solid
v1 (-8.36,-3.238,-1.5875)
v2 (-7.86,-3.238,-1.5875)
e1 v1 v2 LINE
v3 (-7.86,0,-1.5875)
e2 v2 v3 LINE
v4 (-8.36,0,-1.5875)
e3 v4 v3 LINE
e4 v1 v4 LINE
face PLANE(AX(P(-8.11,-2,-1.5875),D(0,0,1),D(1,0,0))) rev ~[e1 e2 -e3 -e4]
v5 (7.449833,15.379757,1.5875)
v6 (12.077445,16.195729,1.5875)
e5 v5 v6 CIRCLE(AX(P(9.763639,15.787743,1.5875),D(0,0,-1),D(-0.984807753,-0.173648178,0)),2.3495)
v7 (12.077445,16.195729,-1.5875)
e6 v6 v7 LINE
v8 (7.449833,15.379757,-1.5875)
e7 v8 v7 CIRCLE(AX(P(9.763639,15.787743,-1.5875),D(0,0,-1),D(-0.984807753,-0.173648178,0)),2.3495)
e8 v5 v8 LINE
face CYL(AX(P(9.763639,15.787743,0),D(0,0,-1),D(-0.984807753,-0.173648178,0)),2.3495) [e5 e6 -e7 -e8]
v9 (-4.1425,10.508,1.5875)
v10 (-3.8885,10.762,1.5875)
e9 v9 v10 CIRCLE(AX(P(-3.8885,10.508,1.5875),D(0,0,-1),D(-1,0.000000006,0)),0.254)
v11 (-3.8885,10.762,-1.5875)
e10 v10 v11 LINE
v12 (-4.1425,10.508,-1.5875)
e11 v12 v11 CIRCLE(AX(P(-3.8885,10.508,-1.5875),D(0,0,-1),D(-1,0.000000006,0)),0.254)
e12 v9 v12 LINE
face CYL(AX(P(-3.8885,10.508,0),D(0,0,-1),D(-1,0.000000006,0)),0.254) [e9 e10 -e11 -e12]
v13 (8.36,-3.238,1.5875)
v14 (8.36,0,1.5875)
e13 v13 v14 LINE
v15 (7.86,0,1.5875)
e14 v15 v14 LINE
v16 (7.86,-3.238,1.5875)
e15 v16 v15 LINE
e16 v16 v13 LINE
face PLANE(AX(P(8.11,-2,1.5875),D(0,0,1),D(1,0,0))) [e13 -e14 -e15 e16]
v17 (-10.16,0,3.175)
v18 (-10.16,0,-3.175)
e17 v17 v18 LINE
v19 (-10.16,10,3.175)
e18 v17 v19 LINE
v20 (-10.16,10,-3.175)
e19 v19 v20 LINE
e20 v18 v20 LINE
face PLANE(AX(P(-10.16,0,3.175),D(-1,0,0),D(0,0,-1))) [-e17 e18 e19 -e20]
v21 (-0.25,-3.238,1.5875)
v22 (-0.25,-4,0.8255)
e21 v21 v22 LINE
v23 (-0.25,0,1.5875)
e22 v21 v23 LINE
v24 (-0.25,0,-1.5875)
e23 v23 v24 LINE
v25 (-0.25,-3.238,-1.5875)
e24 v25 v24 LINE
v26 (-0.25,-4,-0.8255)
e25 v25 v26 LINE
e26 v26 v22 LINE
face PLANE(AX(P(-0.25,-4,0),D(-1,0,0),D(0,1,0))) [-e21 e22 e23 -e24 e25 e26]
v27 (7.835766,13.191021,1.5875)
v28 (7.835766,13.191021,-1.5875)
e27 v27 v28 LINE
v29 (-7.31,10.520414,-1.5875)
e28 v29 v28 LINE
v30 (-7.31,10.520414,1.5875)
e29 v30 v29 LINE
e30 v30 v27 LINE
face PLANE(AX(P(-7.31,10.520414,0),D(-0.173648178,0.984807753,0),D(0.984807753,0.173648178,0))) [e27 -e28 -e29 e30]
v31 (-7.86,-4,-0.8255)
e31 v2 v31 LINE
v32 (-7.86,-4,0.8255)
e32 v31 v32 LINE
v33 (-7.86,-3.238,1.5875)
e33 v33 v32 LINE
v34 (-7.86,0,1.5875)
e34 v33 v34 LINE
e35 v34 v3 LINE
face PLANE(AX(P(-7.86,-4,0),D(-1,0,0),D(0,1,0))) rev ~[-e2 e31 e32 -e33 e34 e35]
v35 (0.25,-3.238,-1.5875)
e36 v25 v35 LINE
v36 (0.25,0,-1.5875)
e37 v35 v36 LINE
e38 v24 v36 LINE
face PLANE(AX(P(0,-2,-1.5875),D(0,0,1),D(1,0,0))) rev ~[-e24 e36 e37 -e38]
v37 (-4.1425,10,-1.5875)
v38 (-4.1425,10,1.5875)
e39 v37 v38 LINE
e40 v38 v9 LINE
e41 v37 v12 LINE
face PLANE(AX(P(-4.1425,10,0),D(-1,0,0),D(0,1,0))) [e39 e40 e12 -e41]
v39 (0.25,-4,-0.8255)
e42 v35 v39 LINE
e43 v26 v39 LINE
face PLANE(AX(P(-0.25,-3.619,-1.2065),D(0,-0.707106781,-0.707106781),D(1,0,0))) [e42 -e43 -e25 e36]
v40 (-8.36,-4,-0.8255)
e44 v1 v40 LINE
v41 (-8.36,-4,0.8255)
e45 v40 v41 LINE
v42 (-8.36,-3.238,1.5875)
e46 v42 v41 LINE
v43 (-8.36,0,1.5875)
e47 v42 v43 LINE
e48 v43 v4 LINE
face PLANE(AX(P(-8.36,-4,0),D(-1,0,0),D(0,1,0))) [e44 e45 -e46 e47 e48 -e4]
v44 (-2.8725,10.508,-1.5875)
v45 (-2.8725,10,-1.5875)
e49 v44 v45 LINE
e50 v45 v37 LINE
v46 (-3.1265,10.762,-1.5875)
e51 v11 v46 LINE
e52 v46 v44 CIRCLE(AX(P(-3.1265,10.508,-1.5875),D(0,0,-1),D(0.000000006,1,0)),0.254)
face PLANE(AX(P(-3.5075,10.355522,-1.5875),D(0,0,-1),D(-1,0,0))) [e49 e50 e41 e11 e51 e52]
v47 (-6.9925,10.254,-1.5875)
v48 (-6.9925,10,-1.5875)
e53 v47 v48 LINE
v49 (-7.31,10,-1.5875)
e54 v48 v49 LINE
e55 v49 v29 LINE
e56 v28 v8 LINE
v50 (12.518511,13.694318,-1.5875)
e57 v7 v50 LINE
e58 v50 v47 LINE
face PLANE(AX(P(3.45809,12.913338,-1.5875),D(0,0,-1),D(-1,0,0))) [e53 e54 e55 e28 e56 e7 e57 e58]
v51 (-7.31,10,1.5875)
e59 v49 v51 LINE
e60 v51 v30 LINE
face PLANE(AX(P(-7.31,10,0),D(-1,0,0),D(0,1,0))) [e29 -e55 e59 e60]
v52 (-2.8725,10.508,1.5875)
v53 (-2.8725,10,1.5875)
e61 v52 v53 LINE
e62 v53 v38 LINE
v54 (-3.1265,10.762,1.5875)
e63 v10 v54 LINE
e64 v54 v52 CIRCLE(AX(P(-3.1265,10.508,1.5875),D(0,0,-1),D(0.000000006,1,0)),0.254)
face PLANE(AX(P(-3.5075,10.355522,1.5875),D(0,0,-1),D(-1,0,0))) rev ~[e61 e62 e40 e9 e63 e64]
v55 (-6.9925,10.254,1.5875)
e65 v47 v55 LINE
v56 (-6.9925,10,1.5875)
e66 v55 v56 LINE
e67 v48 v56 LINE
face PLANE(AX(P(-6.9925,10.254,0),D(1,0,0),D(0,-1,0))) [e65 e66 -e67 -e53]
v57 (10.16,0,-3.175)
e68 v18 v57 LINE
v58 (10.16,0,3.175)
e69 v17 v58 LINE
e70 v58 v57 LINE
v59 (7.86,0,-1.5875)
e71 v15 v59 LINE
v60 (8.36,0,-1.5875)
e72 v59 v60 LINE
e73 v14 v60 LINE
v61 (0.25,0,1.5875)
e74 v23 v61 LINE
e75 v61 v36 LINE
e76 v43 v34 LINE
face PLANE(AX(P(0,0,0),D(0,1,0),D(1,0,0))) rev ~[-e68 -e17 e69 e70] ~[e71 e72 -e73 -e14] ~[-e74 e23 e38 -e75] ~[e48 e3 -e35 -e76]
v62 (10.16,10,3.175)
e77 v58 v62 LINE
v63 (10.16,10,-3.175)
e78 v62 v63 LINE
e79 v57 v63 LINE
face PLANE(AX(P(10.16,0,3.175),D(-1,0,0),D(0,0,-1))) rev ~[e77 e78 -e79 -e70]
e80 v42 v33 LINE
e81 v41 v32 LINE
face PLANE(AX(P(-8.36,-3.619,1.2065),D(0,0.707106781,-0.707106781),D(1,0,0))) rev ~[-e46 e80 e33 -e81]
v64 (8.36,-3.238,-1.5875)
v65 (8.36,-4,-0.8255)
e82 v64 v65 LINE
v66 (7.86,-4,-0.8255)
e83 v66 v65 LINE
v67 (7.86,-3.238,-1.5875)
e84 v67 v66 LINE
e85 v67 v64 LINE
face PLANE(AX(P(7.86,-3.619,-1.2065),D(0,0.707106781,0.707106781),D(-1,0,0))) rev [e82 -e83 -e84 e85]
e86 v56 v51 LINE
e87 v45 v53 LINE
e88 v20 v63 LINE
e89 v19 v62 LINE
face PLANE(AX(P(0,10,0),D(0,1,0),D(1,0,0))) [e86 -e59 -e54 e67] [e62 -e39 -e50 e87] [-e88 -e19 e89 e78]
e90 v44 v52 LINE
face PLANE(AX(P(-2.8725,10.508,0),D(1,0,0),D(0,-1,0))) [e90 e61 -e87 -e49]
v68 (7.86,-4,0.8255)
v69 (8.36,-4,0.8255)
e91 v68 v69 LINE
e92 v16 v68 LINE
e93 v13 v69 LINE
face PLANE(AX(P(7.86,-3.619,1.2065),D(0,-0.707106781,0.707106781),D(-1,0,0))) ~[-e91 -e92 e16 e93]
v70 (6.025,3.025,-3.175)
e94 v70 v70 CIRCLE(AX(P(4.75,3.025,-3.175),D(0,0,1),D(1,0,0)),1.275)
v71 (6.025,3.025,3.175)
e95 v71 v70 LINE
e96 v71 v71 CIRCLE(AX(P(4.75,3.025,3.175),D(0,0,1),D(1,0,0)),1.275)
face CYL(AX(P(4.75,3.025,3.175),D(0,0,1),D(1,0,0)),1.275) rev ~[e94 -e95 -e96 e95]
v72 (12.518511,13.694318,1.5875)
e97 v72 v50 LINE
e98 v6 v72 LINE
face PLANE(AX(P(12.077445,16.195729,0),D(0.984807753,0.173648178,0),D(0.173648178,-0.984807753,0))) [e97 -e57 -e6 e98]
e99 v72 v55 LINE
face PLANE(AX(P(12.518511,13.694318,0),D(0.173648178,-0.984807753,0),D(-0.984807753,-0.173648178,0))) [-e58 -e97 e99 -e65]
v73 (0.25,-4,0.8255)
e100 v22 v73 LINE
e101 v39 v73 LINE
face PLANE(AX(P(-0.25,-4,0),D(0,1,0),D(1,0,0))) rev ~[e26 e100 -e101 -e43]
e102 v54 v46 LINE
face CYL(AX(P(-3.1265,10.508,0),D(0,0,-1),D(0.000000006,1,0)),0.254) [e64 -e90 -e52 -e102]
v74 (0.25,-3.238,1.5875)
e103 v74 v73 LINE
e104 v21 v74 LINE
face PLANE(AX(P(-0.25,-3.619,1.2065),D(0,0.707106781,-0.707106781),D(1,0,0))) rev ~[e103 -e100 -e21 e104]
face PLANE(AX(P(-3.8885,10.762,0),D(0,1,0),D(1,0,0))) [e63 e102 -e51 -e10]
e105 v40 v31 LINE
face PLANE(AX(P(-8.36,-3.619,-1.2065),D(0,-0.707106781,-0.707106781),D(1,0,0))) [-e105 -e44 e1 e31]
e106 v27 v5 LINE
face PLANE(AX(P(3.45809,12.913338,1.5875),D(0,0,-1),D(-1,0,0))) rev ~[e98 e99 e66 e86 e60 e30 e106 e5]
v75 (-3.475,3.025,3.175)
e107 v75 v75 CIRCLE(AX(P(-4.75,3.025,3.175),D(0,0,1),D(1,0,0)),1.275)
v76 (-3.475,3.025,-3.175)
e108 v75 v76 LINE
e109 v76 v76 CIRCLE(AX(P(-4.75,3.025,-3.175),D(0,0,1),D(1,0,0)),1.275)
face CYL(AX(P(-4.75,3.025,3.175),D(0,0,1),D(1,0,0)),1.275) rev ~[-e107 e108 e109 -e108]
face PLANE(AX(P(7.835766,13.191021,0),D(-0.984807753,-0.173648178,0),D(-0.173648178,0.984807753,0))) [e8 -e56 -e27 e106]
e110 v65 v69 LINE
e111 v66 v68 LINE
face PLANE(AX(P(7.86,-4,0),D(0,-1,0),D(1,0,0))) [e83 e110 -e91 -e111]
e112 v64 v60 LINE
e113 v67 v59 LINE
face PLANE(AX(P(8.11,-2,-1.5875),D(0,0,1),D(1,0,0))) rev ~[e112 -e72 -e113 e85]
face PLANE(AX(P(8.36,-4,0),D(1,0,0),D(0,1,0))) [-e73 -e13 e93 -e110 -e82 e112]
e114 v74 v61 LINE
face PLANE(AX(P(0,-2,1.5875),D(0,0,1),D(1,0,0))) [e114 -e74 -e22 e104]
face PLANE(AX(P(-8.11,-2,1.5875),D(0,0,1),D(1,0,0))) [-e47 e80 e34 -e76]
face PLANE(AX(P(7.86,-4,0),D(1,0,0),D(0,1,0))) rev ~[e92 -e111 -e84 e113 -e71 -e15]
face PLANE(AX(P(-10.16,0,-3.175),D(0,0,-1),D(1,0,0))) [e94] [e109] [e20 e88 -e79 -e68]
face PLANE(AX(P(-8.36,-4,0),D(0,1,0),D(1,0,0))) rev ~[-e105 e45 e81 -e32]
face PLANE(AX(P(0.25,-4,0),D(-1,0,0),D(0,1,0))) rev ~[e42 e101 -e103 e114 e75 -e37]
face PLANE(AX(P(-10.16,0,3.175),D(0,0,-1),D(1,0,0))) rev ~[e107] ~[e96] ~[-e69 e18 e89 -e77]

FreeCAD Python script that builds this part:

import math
import FreeCAD as App
import Part
import Sketcher

V = App.Vector
Q = App.Units.Quantity


def edges_at(feature, points):
    """Names of the edges that pass closest to the given points."""
    edges = feature.Shape.Edges
    near = lambda p: min(range(len(edges)), key=lambda i: edges[i].distToShape(Part.Vertex(*p))[0])
    return sorted({f"Edge{near(p) + 1}" for p in points})

doc = App.newDocument("Part")
params = doc.addObject("Spreadsheet::Sheet", "Params")
for row, (alias, value) in enumerate([
    ("sketch1_width", "0.8 in"),
    ("sketch1_height", "0.25 in"),
    ("pad1_length", "10 mm"),
    ("sketch2_radius", "0.01 in"),
    ("sketch2_length", "0.1 in"),
    ("sketch2_width", "0.05 in"),
    ("sketch2_height", "0.02 in"),
    ("sketch2_height2", "0.01 in"),
    ("pad2_length", "0.125 in"),
    ("chamfer_size", "0.03 in"),
], start=1):
    params.set(f"A{row}", alias)
    params.set(f"B{row}", "=" + value)
    params.setAlias(f"B{row}", alias)

body = doc.addObject("PartDesign::Body", "Body")

# Sketch on XZ plane
sketch1 = body.newObject("Sketcher::SketchObject", "Sketch")
sketch1.AttachmentSupport = (doc.getObject("XZ_Plane"), [""])
sketch1.MapMode = "FlatFace"
sketch1.addGeometry([
    Part.LineSegment(V(-10.16, -3.175, 0), V(-10.16, 3.175, 0)),
    Part.LineSegment(V(-10.16, 3.175, 0), V(10.16, 3.175, 0)),
    Part.LineSegment(V(10.16, 3.175, 0), V(10.16, -3.175, 0)),
    Part.LineSegment(V(10.16, -3.175, 0), V(-10.16, -3.175, 0)),
], False)
sketch1.addConstraint([
    Sketcher.Constraint("Coincident", 0, 2, 1, 1),
    Sketcher.Constraint("Coincident", 1, 2, 2, 1),
    Sketcher.Constraint("Coincident", 2, 2, 3, 1),
    Sketcher.Constraint("Coincident", 3, 2, 0, 1),
    Sketcher.Constraint("Vertical", 0),
    Sketcher.Constraint("Horizontal", 1),
    Sketcher.Constraint("Vertical", 2),
    Sketcher.Constraint("Horizontal", 3),
    Sketcher.Constraint("Symmetric", 0, 2, 2, 2, -1, 1),
    Sketcher.Constraint("DistanceX", 1, 1, 1, 2, Q("0.8 in")),
    Sketcher.Constraint("DistanceY", 0, 1, 0, 2, Q("0.25 in")),
])
sketch1.setExpression("Constraints[9]", "Params.sketch1_width")
sketch1.setExpression("Constraints[10]", "Params.sketch1_height")
pad1 = body.newObject("PartDesign::Pad", "Pad")
pad1.Profile = sketch1
pad1.setExpression("Length", "Params.pad1_length")
pad1.Reversed = True

# Sketch on XY plane
sketch2 = body.newObject("Sketcher::SketchObject", "Sketch001")
sketch2.AttachmentSupport = (doc.getObject("XY_Plane"), [""])
sketch2.MapMode = "FlatFace"
sketch2.addGeometry([
    Part.LineSegment(V(-4.1425, 10.508, 0), V(-4.1425, 10, 0)),  # 0
    Part.LineSegment(V(-4.1425, 10, 0), V(-2.8725, 10, 0)),  # 1
    Part.LineSegment(V(-2.8725, 10, 0), V(-2.8725, 10.508, 0)),  # 2
    Part.ArcOfCircle(Part.Circle(V(-3.1265, 10.508, 0), V(0, 0, 1), 0.254), math.radians(0), math.radians(90)),  # 3
    Part.LineSegment(V(-3.1265, 10.762, 0), V(-3.8885, 10.762, 0)),  # 4
    Part.ArcOfCircle(Part.Circle(V(-3.8885, 10.508, 0), V(0, 0, 1), 0.254), math.radians(90), math.radians(180)),  # 5
    Part.LineSegment(V(-7.31, 10.520414, 0), V(-7.31, 10, 0)),  # 6
    Part.LineSegment(V(-7.31, 10, 0), V(-6.9925, 10, 0)),  # 7
    Part.LineSegment(V(-6.9925, 10, 0), V(-6.9925, 10.254, 0)),  # 8
    Part.LineSegment(V(-6.9925, 10.254, 0), V(12.518511, 13.694318, 0)),  # 9
    Part.LineSegment(V(12.518511, 13.694318, 0), V(12.077445, 16.195729, 0)),  # 10
    Part.ArcOfCircle(Part.Circle(V(9.763639, 15.787743, 0), V(0, 0, 1), 2.3495), math.radians(10), math.radians(190)),  # 11
    Part.LineSegment(V(7.449833, 15.379757, 0), V(7.835766, 13.191021, 0)),  # 12
    Part.LineSegment(V(7.835766, 13.191021, 0), V(-7.31, 10.520414, 0)),  # 13
    Part.LineSegment(V(-8.36, 0, 0), V(-8.36, -4, 0)),  # 14
    Part.LineSegment(V(-8.36, -4, 0), V(-7.86, -4, 0)),  # 15
    Part.LineSegment(V(-7.86, -4, 0), V(-7.86, 0, 0)),  # 16
    Part.LineSegment(V(-7.86, 0, 0), V(-8.36, 0, 0)),  # 17
    Part.LineSegment(V(-0.25, 0, 0), V(-0.25, -4, 0)),  # 18
    Part.LineSegment(V(-0.25, -4, 0), V(0.25, -4, 0)),  # 19
    Part.LineSegment(V(0.25, -4, 0), V(0.25, 0, 0)),  # 20
    Part.LineSegment(V(0.25, 0, 0), V(-0.25, 0, 0)),  # 21
    Part.LineSegment(V(7.86, 0, 0), V(7.86, -4, 0)),  # 22
    Part.LineSegment(V(7.86, -4, 0), V(8.36, -4, 0)),  # 23
    Part.LineSegment(V(8.36, -4, 0), V(8.36, 0, 0)),  # 24
    Part.LineSegment(V(8.36, 0, 0), V(7.86, 0, 0)),  # 25
], False)
sketch2.addConstraint([
    Sketcher.Constraint("Coincident", 0, 2, 1, 1),
    Sketcher.Constraint("Coincident", 1, 2, 2, 1),
    Sketcher.Constraint("Tangent", 2, 2, 3, 1),
    Sketcher.Constraint("Tangent", 3, 2, 4, 1),
    Sketcher.Constraint("Tangent", 4, 2, 5, 1),
    Sketcher.Constraint("Tangent", 5, 2, 0, 1),
    Sketcher.Constraint("Coincident", 6, 2, 7, 1),
    Sketcher.Constraint("Coincident", 7, 2, 8, 1),
    Sketcher.Constraint("Coincident", 8, 2, 9, 1),
    Sketcher.Constraint("Coincident", 9, 2, 10, 1),
    Sketcher.Constraint("Tangent", 10, 2, 11, 1),
    Sketcher.Constraint("Tangent", 11, 2, 12, 1),
    Sketcher.Constraint("Coincident", 12, 2, 13, 1),
    Sketcher.Constraint("Coincident", 13, 2, 6, 1),
    Sketcher.Constraint("Coincident", 14, 2, 15, 1),
    Sketcher.Constraint("Coincident", 15, 2, 16, 1),
    Sketcher.Constraint("Coincident", 16, 2, 17, 1),
    Sketcher.Constraint("Coincident", 17, 2, 14, 1),
    Sketcher.Constraint("Coincident", 18, 2, 19, 1),
    Sketcher.Constraint("Coincident", 19, 2, 20, 1),
    Sketcher.Constraint("Coincident", 20, 2, 21, 1),
    Sketcher.Constraint("Coincident", 21, 2, 18, 1),
    Sketcher.Constraint("Coincident", 22, 2, 23, 1),
    Sketcher.Constraint("Coincident", 23, 2, 24, 1),
    Sketcher.Constraint("Coincident", 24, 2, 25, 1),
    Sketcher.Constraint("Coincident", 25, 2, 22, 1),
    Sketcher.Constraint("Vertical", 0),
    Sketcher.Constraint("Horizontal", 1),
    Sketcher.Constraint("Vertical", 2),
    Sketcher.Constraint("Horizontal", 4),
    Sketcher.Constraint("Vertical", 6),
    Sketcher.Constraint("Horizontal", 7),
    Sketcher.Constraint("Vertical", 8),
    Sketcher.Constraint("Vertical", 14),
    Sketcher.Constraint("Horizontal", 15),
    Sketcher.Constraint("Vertical", 16),
    Sketcher.Constraint("Horizontal", 17),
    Sketcher.Constraint("Vertical", 18),
    Sketcher.Constraint("Horizontal", 19),
    Sketcher.Constraint("Vertical", 20),
    Sketcher.Constraint("Horizontal", 21),
    Sketcher.Constraint("Vertical", 22),
    Sketcher.Constraint("Horizontal", 23),
    Sketcher.Constraint("Vertical", 24),
    Sketcher.Constraint("Horizontal", 25),
    Sketcher.Constraint("Equal", 3, 5),
    Sketcher.Constraint("Symmetric", 20, 2, 21, 2, -1, 1),
    Sketcher.Constraint("Symmetric", 17, 2, 24, 2, -1, 1),
    Sketcher.Constraint("Symmetric", 15, 2, 22, 2, -2),
    Sketcher.Constraint("PointOnObject", 16, 2, -1),
    Sketcher.Constraint("Perpendicular", 9, 10),
    Sketcher.Constraint("Parallel", 10, 12),
    Sketcher.Constraint("Perpendicular", 12, 13),
    Sketcher.Constraint("Horizontal", 1, 2, 6, 2),
    Sketcher.Constraint("Horizontal", 15, 2, 18, 2),
    Sketcher.Constraint("Equal", 17, 19),
    Sketcher.Constraint("Radius", 3, Q("0.01 in")),
    Sketcher.Constraint("Angle", 9, Q("10 deg")),
    Sketcher.Constraint("Distance", 10, Q("0.1 in")),
    Sketcher.Constraint("DistanceX", 1, 1, 1, 2, Q("0.05 in")),
    Sketcher.Constraint("DistanceY", 0, 2, 0, 1, Q("0.02 in")),
    Sketcher.Constraint("DistanceY", 8, 1, 8, 2, Q("0.01 in")),
    Sketcher.Constraint("Radius", 11, Q("0.0925 in")),
    Sketcher.Constraint("Distance", 9, Q("0.78 in")),
    Sketcher.Constraint("DistanceX", 7, 1, 7, 2, Q("0.0125 in")),
    Sketcher.Constraint("Distance", 12, Q("0.0875 in")),
    Sketcher.Constraint("DistanceX", 15, 1, 15, 2, 0.5),
    Sketcher.Constraint("DistanceY", 14, 2, 14, 1, 4.0),
    Sketcher.Constraint("DistanceX", 3, 3, -1, 1, 3.1265),
    Sketcher.Constraint("DistanceY", -1, 1, 3, 3, 10.508),
    Sketcher.Constraint("DistanceX", 6, 2, -1, 1, 7.31),
    Sketcher.Constraint("DistanceX", 14, 2, -1, 1, 8.36),
])
sketch2.setExpression("Constraints[56]", "Params.sketch2_radius")
sketch2.setExpression("Constraints[58]", "Params.sketch2_length")
sketch2.setExpression("Constraints[59]", "Params.sketch2_width")
sketch2.setExpression("Constraints[60]", "Params.sketch2_height")
sketch2.setExpression("Constraints[61]", "Params.sketch2_height2")
pad2 = body.newObject("PartDesign::Pad", "Pad001")
pad2.Profile = sketch2
pad2.setExpression("Length", "Params.pad2_length")
pad2.Midplane = True
doc.recompute()

chamfer = body.newObject("PartDesign::Chamfer", "Chamfer")
chamfer.Base = (pad2, edges_at(pad2, [
    (-8.11, -4, -1.587),
    (-8.11, -4, 1.587),
    (0, -4, -1.587),
    (0, -4, 1.587),
    (8.11, -4, -1.587),
    (8.11, -4, 1.587),
]))
chamfer.setExpression("Size", "Params.chamfer_size")

# Sketch on XY plane
sketch3 = body.newObject("Sketcher::SketchObject", "Sketch002")
sketch3.AttachmentSupport = (doc.getObject("XY_Plane"), [""])
sketch3.MapMode = "FlatFace"
sketch3.AttachmentOffset = App.Placement(V(0, 0, 0.125 * 25.4), App.Rotation())
sketch3.addGeometry([
    Part.Circle(V(-4.75, 3.025, 0), V(0, 0, 1), 1.275),
    Part.Circle(V(4.75, 3.025, 0), V(0, 0, 1), 1.275),
], False)
sketch3.addConstraint([
    Sketcher.Constraint("Equal", 0, 1),
    Sketcher.Constraint("Symmetric", 0, 3, 1, 3, -2),
    Sketcher.Constraint("Diameter", 0, 2.55),
    Sketcher.Constraint("DistanceX", 0, 3, -1, 1, 4.75),
    Sketcher.Constraint("DistanceY", -1, 1, 0, 3, 3.025),
])
pocket1 = body.newObject("PartDesign::Pocket", "Pocket")
pocket1.Profile = sketch3
pocket1.Type = "ThroughAll"

doc.recompute()
